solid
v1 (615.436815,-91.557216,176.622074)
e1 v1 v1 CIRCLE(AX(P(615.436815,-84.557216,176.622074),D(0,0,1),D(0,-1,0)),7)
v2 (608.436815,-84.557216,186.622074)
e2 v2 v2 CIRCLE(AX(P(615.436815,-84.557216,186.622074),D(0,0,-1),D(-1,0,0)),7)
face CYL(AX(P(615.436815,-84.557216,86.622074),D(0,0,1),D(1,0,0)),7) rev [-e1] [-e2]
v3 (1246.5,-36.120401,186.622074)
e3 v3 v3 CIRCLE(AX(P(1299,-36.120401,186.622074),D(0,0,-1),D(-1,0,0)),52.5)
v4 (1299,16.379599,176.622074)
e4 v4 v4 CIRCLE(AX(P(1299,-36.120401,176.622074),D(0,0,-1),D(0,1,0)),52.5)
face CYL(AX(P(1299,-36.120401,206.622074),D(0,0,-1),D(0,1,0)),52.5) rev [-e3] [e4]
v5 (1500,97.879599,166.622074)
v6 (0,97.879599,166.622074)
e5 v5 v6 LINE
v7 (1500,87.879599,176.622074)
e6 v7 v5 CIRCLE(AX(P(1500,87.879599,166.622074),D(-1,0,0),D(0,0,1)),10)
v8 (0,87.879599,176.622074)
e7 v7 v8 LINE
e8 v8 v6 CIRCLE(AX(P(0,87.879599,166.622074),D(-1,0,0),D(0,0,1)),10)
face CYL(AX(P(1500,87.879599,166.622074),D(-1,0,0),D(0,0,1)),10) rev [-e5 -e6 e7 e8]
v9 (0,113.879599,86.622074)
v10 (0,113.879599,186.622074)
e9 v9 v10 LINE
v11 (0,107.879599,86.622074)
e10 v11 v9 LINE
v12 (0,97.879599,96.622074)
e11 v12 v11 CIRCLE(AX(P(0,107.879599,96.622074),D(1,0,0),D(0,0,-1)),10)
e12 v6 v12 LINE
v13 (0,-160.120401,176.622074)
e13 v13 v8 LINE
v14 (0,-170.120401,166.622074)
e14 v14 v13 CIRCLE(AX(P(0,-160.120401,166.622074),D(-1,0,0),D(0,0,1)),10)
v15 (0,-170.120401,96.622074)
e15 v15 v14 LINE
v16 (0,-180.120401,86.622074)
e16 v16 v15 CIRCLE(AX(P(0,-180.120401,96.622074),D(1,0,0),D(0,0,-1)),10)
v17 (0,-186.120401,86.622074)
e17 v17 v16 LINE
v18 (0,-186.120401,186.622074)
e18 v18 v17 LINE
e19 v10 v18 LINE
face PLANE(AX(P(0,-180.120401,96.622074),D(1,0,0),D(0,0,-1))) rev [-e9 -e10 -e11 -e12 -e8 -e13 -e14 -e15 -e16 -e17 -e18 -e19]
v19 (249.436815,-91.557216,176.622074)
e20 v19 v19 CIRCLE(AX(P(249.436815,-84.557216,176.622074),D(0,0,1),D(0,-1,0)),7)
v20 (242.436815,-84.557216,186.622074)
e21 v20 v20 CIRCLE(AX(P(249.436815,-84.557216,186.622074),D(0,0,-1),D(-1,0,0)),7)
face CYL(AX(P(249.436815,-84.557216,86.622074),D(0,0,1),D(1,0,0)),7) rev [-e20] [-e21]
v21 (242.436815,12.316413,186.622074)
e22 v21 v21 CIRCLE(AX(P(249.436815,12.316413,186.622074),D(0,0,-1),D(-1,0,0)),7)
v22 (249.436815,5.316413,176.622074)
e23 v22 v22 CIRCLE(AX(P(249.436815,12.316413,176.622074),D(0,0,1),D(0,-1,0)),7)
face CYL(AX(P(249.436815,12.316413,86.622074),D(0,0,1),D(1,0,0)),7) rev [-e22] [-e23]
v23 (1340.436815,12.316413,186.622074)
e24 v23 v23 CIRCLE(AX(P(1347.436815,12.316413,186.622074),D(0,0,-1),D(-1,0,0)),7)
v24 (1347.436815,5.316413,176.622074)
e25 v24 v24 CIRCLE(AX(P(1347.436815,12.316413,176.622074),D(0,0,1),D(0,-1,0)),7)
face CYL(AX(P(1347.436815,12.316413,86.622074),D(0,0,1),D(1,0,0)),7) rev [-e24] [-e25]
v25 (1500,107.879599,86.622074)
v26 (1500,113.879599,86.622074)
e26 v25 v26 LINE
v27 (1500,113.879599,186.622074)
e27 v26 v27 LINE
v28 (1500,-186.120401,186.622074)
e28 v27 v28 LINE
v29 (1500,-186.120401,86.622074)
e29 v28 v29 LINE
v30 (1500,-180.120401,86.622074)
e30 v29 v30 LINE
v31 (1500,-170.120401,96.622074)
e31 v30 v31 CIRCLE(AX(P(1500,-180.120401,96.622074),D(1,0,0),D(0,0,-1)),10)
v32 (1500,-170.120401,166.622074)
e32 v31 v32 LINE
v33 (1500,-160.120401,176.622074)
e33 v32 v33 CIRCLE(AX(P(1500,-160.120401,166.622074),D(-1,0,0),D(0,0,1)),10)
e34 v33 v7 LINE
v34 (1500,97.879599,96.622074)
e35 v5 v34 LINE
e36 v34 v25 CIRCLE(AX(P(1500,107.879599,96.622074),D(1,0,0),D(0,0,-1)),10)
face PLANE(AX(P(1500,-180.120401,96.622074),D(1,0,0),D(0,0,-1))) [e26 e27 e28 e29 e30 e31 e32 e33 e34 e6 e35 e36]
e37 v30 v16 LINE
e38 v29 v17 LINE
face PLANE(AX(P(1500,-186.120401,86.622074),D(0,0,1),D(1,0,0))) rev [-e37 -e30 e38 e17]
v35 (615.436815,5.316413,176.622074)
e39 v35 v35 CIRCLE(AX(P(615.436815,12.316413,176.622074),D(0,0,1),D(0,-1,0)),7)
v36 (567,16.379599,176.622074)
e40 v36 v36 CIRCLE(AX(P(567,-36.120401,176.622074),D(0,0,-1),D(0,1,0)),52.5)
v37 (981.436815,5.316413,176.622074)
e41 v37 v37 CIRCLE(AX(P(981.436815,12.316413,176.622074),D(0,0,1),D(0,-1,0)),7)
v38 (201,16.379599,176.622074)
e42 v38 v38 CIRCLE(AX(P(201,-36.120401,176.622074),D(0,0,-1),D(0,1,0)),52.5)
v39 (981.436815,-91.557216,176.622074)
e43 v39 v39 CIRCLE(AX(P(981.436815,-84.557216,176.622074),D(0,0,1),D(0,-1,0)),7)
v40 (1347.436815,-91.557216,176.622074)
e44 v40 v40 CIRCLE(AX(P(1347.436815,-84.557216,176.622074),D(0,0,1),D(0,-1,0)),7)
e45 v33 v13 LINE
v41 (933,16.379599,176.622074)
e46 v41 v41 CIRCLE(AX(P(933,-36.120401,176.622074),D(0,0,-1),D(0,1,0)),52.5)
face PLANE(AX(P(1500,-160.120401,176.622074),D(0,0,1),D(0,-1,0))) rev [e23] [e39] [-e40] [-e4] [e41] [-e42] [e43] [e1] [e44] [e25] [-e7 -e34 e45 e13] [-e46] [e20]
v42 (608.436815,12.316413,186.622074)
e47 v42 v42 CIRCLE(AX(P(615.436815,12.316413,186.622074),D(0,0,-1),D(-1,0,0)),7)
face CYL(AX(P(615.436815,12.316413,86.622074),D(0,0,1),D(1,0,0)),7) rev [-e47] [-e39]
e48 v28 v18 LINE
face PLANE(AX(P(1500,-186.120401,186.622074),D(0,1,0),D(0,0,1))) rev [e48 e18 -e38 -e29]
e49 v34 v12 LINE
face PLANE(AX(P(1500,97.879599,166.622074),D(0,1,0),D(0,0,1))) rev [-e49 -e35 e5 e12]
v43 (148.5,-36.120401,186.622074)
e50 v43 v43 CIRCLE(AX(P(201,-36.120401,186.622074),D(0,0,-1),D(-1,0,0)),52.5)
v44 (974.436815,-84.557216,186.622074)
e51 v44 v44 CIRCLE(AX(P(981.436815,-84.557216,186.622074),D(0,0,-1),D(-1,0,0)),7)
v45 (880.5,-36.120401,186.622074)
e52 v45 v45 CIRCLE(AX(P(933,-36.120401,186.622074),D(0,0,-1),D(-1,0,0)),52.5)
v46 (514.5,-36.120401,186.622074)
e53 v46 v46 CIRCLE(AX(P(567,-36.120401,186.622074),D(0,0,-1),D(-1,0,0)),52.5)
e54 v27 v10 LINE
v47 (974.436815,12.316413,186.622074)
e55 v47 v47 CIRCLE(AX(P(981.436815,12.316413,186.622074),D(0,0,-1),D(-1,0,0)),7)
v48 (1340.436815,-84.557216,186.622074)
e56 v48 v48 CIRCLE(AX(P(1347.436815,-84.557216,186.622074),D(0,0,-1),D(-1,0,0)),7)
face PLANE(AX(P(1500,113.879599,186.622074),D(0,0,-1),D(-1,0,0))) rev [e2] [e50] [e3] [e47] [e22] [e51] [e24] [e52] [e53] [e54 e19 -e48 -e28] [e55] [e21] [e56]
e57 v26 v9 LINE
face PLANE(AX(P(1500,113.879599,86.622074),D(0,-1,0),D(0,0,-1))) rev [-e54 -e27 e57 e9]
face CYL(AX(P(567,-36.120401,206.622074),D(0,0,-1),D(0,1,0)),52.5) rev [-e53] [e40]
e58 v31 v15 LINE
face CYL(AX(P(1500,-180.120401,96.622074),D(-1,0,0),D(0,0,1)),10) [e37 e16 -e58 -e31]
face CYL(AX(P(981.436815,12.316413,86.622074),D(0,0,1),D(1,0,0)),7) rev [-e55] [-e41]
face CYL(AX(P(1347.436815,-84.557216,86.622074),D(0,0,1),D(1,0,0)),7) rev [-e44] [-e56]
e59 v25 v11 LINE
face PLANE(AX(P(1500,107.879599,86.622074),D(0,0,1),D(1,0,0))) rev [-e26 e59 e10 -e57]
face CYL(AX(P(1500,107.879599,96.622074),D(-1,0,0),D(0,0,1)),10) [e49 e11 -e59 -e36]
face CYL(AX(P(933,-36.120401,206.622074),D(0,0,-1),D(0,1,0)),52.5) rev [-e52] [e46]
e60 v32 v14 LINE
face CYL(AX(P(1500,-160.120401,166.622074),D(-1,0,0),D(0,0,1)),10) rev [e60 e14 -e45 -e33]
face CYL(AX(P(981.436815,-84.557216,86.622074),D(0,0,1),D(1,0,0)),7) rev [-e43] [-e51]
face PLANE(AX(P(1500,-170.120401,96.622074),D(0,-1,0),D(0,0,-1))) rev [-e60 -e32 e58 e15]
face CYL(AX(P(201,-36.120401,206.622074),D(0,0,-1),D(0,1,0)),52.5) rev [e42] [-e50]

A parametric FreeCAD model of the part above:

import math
import FreeCAD as App
import Part
import Sketcher
from FreeCAD import Vector
Q = App.Units.Quantity

doc = App.newDocument("Part")
body = doc.addObject("PartDesign::Body", "Body")

# Sketch on YZ plane
sketch1 = body.newObject("Sketcher::SketchObject", "Sketch")
sketch1.AttachmentSupport = (doc.getObject("YZ_Plane"), [""])
sketch1.MapMode = "FlatFace"
sketch1.addGeometry(Part.LineSegment(Vector(114, 87, 0), Vector(114, 187, 0)), False)
sketch1.addGeometry(Part.LineSegment(Vector(114, 187, 0), Vector(-186, 187, 0)), False)
sketch1.addGeometry(Part.LineSegment(Vector(-186, 187, 0), Vector(-186, 87, 0)), False)
sketch1.addGeometry(Part.LineSegment(Vector(-186, 87, 0), Vector(-180, 87, 0)), False)
sketch1.addGeometry(Part.ArcOfCircle(Part.Circle(Vector(-180, 97, 0), Vector(0, 0, 1), 10), math.radians(-90), math.radians(0)), False)
sketch1.addGeometry(Part.LineSegment(Vector(-170, 97, 0), Vector(-170, 167, 0)), False)
sketch1.addGeometry(Part.ArcOfCircle(Part.Circle(Vector(-160, 167, 0), Vector(0, 0, 1), 10), math.radians(90), math.radians(180)), False)
sketch1.addGeometry(Part.LineSegment(Vector(-160, 177, 0), Vector(88, 177, 0)), False)
sketch1.addGeometry(Part.ArcOfCircle(Part.Circle(Vector(88, 167, 0), Vector(0, 0, 1), 10), math.radians(0), math.radians(90)), False)
sketch1.addGeometry(Part.LineSegment(Vector(98, 167, 0), Vector(98, 97, 0)), False)
sketch1.addGeometry(Part.ArcOfCircle(Part.Circle(Vector(108, 97, 0), Vector(0, 0, 1), 10), math.radians(180), math.radians(270)), False)
sketch1.addGeometry(Part.LineSegment(Vector(108, 87, 0), Vector(114, 87, 0)), False)
sketch1.addConstraint(Sketcher.Constraint("Coincident", 0, 2, 1, 1))
sketch1.addConstraint(Sketcher.Constraint("Coincident", 1, 2, 2, 1))
sketch1.addConstraint(Sketcher.Constraint("Coincident", 2, 2, 3, 1))
sketch1.addConstraint(Sketcher.Constraint("Tangent", 3, 2, 4, 1))
sketch1.addConstraint(Sketcher.Constraint("Tangent", 4, 2, 5, 1))
sketch1.addConstraint(Sketcher.Constraint("Tangent", 5, 2, 6, 2))
sketch1.addConstraint(Sketcher.Constraint("Tangent", 6, 1, 7, 1))
sketch1.addConstraint(Sketcher.Constraint("Tangent", 7, 2, 8, 2))
sketch1.addConstraint(Sketcher.Constraint("Tangent", 8, 1, 9, 1))
sketch1.addConstraint(Sketcher.Constraint("Tangent", 9, 2, 10, 1))
sketch1.addConstraint(Sketcher.Constraint("Tangent", 10, 2, 11, 1))
sketch1.addConstraint(Sketcher.Constraint("Coincident", 11, 2, 0, 1))
sketch1.addConstraint(Sketcher.Constraint("Vertical", 0))
sketch1.addConstraint(Sketcher.Constraint("Horizontal", 1))
sketch1.addConstraint(Sketcher.Constraint("Vertical", 2))
sketch1.addConstraint(Sketcher.Constraint("Horizontal", 3))
sketch1.addConstraint(Sketcher.Constraint("Vertical", 5))
sketch1.addConstraint(Sketcher.Constraint("Horizontal", 7))
sketch1.addConstraint(Sketcher.Constraint("Vertical", 9))
sketch1.addConstraint(Sketcher.Constraint("Horizontal", 11))
sketch1.addConstraint(Sketcher.Constraint("Equal", 4, 6))
sketch1.addConstraint(Sketcher.Constraint("Equal", 6, 8))
sketch1.addConstraint(Sketcher.Constraint("Equal", 8, 10))
sketch1.addConstraint(Sketcher.Constraint("Horizontal", 4, 3, 10, 3))
sketch1.addConstraint(Sketcher.Constraint("Equal", 3, 11))
sketch1.addConstraint(Sketcher.Constraint("Radius", 4, Q("10 mm")))
sketch1.addConstraint(Sketcher.Constraint("DistanceX", 1, 2, 1, 1, Q("300 mm")))
sketch1.addConstraint(Sketcher.Constraint("DistanceX", 3, 1, 3, 2, Q("6 mm")))
sketch1.addConstraint(Sketcher.Constraint("DistanceY", 0, 1, 0, 2, Q("100 mm")))
sketch1.addConstraint(Sketcher.Constraint("DistanceY", 5, 1, 5, 2, Q("70 mm")))
sketch1.addConstraint(Sketcher.Constraint("DistanceX", 4, 3, -1, 1, Q("180.120401 mm")))
sketch1.addConstraint(Sketcher.Constraint("DistanceY", -1, 1, 4, 3, Q("96.622074 mm")))
pad1 = body.newObject("PartDesign::Pad", "Pad")
pad1.Profile = sketch1
pad1.Length = 1500

# Sketch on XY plane
sketch2 = body.newObject("Sketcher::SketchObject", "Sketch001")
sketch2.AttachmentSupport = (doc.getObject("XY_Plane"), [""])
sketch2.MapMode = "FlatFace"
sketch2.AttachmentOffset = App.Placement(Vector(0, 0, 176.622074), App.Rotation())
sketch2.addGeometry(Part.Circle(Vector(1299, -36, 0), Vector(0, 0, 1), 52), False)
sketch2.addConstraint(Sketcher.Constraint("Diameter", 0, Q("105 mm")))
sketch2.addConstraint(Sketcher.Constraint("DistanceX", -1, 1, 0, 3, Q("1299 mm")))
sketch2.addConstraint(Sketcher.Constraint("DistanceY", 0, 3, -1, 1, Q("36.120401 mm")))
pocket1 = body.newObject("PartDesign::Pocket", "Pocket")
pocket1.Profile = sketch2
pocket1.Length = 30
pocket1.Reversed = True
doc.recompute()

linearpattern = body.newObject("PartDesign::LinearPattern", "LinearPattern")
linearpattern.Originals = [pocket1]
linearpattern.Direction = (doc.getObject("X_Axis"), [""])
linearpattern.Mode = "offset"
linearpattern.Offset = 366
linearpattern.Occurrences = 4
linearpattern.Reversed = True
body.Tip = linearpattern

# Sketch on XY plane
sketch3 = body.newObject("Sketcher::SketchObject", "Sketch002")
sketch3.AttachmentSupport = (doc.getObject("XY_Plane"), [""])
sketch3.MapMode = "FlatFace"
sketch3.AttachmentOffset = App.Placement(Vector(0, 0, 186.622074), App.Rotation())
sketch3.addGeometry(Part.Circle(Vector(1347, 12, 0), Vector(0, 0, 1), 7), False)
sketch3.addGeometry(Part.Circle(Vector(1347, -85, 0), Vector(0, 0, 1), 7), False)
sketch3.addConstraint(Sketcher.Constraint("Equal", 0, 1))
sketch3.addConstraint(Sketcher.Constraint("Vertical", 0, 3, 1, 3))
sketch3.addConstraint(Sketcher.Constraint("Diameter", 0, Q("14 mm")))
sketch3.addConstraint(Sketcher.Constraint("DistanceY", 1, 3, 0, 3, Q("96.873629 mm")))
sketch3.addConstraint(Sketcher.Constraint("DistanceX", -1, 1, 0, 3, Q("1347.436815 mm")))
sketch3.addConstraint(Sketcher.Constraint("DistanceY", -1, 1, 0, 3, Q("12.316413 mm")))
pocket2 = body.newObject("PartDesign::Pocket", "Pocket001")
pocket2.Profile = sketch3
pocket2.Length = 3031.614367
pocket2.Midplane = True
doc.recompute()

linearpattern2 = body.newObject("PartDesign::LinearPattern", "LinearPattern001")
linearpattern2.Originals = [pocket2]
linearpattern2.Direction = (doc.getObject("X_Axis"), [""])
linearpattern2.Mode = "offset"
linearpattern2.Offset = 366
linearpattern2.Occurrences = 4
linearpattern2.Reversed = True
body.Tip = linearpattern2

doc.recompute()
